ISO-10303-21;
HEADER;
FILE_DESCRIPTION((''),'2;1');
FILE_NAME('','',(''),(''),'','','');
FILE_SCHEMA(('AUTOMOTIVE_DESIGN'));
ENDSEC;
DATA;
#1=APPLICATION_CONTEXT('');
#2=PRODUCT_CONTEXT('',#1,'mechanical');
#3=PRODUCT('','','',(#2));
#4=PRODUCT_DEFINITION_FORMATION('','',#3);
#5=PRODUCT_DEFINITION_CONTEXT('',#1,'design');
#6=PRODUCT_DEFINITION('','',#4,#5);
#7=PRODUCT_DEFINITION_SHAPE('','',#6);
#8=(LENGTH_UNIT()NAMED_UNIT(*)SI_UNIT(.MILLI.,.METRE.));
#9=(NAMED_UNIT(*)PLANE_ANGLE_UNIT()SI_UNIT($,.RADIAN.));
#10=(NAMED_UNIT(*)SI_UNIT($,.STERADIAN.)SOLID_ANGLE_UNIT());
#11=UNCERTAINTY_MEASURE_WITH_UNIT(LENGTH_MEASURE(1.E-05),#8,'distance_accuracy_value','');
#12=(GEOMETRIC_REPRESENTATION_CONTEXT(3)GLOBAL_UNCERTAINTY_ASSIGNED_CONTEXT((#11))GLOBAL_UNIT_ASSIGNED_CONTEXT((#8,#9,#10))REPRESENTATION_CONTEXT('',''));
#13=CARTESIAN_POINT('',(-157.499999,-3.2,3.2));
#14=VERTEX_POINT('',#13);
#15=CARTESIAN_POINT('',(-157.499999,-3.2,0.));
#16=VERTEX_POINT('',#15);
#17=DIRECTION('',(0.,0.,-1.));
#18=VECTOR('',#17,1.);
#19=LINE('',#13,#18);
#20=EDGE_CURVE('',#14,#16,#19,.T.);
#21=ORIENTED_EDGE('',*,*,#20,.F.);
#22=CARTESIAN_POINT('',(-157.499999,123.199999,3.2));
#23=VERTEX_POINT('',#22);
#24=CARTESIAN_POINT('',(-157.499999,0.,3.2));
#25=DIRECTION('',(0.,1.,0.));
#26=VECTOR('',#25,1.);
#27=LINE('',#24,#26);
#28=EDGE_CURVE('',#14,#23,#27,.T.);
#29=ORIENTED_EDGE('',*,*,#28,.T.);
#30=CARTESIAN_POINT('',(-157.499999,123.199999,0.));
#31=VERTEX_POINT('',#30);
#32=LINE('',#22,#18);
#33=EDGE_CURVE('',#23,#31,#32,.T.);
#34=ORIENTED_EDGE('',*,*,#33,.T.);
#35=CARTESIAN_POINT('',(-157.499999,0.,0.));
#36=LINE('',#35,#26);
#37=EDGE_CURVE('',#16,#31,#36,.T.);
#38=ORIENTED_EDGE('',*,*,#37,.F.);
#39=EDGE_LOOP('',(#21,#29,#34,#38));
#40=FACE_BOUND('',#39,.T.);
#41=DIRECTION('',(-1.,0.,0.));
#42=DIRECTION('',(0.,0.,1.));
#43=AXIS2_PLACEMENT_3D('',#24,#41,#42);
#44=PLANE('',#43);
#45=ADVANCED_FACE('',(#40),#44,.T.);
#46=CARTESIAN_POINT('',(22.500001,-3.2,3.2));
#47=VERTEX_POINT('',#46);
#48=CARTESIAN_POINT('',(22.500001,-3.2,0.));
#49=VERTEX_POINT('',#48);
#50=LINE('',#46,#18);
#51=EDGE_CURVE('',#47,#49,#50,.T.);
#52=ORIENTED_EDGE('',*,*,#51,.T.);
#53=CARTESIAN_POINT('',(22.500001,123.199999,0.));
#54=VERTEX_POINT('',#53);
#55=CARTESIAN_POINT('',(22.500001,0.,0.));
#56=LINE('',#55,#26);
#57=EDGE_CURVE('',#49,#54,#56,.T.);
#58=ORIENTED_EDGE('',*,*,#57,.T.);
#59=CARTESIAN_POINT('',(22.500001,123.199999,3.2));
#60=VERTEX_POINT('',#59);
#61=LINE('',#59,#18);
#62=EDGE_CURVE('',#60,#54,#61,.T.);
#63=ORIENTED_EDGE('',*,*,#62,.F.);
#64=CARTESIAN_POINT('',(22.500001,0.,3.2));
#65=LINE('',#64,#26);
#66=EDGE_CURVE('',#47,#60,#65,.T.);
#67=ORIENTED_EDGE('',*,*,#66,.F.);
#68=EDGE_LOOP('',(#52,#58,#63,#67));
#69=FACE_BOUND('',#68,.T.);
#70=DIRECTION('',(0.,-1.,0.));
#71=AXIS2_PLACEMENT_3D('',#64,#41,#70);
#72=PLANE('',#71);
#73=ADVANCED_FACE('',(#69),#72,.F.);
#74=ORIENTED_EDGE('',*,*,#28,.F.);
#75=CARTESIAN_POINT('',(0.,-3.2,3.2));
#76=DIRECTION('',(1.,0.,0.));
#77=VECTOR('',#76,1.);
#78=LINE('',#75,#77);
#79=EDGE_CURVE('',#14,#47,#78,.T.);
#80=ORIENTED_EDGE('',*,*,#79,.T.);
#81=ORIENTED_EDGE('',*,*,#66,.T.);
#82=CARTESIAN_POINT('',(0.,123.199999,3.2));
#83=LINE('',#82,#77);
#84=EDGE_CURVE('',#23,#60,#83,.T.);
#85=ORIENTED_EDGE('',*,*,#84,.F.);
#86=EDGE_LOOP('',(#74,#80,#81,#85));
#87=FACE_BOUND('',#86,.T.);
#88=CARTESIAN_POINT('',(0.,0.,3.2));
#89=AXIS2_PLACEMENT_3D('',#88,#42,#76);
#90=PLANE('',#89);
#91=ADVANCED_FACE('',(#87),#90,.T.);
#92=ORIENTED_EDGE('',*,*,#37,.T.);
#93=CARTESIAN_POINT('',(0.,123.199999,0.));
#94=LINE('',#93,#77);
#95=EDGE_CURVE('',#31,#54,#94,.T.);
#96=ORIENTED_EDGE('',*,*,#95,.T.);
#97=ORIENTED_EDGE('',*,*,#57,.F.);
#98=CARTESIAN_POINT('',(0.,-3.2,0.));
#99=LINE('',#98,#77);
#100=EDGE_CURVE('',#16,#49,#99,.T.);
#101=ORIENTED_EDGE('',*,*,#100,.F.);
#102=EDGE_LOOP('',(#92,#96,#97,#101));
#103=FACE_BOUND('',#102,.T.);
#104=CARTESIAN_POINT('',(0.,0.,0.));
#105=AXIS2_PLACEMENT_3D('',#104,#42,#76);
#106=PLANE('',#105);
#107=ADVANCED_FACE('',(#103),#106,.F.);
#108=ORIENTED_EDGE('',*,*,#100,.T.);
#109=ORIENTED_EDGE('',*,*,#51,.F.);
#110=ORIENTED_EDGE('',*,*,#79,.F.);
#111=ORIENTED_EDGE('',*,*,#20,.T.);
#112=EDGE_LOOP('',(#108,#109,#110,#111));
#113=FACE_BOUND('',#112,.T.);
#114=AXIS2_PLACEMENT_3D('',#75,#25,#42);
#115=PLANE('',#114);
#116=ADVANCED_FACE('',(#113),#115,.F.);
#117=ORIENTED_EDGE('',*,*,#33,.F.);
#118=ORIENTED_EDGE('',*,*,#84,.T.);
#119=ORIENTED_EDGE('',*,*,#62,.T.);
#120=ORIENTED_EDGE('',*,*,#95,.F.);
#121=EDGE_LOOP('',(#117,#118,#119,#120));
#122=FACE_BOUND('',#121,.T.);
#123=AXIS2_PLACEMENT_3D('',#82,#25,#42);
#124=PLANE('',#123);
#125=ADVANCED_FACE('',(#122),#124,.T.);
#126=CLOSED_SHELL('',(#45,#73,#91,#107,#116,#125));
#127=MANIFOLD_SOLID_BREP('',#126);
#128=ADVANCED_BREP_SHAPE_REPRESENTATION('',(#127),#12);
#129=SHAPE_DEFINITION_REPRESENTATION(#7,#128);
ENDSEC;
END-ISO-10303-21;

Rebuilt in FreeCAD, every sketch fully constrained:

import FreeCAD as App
import Part
import Sketcher

V = App.Vector


def add_polygon(sketch, points):
    """Adds a closed chain of lines whose ends are joined by coincident constraints."""
    first, n = sketch.GeometryCount, len(points)
    for a, b in zip(points, points[1:] + points[:1]):
        sketch.addGeometry(Part.LineSegment(App.Vector(*a, 0), App.Vector(*b, 0)), False)
    for i in range(n):
        sketch.addConstraint(Sketcher.Constraint("Coincident", first + i, 2, first + (i + 1) % n, 1))

doc = App.newDocument("Part")
body = doc.addObject("PartDesign::Body", "Body")

sketch1 = doc.addObject("Sketcher::SketchObject", "Sketch")
body.addObject(sketch1)
sketch1.AttachmentSupport = (doc.XY_Plane, [""])
sketch1.MapMode = "FlatFace"
add_polygon(sketch1, [(22.500001, -3.2), (22.500001, 123.199999), (-157.499999, 123.199999), (-157.499999, -3.2)])
sketch1.addConstraint([
    Sketcher.Constraint("Vertical", 0),
    Sketcher.Constraint("Horizontal", 1),
    Sketcher.Constraint("Vertical", 2),
    Sketcher.Constraint("Horizontal", 3),
    Sketcher.Constraint("DistanceX", 1, 2, 1, 1, 180.0),
    Sketcher.Constraint("DistanceY", 0, 1, 0, 2, 126.399999),
    Sketcher.Constraint("DistanceX", -1, 1, 0, 2, 22.500001),
    Sketcher.Constraint("DistanceY", -1, 1, 0, 2, 123.199999),
])
pad1 = doc.addObject("PartDesign::Pad", "Pad")
body.addObject(pad1)
pad1.Profile = sketch1
pad1.Length = 3.2

doc.recompute()
